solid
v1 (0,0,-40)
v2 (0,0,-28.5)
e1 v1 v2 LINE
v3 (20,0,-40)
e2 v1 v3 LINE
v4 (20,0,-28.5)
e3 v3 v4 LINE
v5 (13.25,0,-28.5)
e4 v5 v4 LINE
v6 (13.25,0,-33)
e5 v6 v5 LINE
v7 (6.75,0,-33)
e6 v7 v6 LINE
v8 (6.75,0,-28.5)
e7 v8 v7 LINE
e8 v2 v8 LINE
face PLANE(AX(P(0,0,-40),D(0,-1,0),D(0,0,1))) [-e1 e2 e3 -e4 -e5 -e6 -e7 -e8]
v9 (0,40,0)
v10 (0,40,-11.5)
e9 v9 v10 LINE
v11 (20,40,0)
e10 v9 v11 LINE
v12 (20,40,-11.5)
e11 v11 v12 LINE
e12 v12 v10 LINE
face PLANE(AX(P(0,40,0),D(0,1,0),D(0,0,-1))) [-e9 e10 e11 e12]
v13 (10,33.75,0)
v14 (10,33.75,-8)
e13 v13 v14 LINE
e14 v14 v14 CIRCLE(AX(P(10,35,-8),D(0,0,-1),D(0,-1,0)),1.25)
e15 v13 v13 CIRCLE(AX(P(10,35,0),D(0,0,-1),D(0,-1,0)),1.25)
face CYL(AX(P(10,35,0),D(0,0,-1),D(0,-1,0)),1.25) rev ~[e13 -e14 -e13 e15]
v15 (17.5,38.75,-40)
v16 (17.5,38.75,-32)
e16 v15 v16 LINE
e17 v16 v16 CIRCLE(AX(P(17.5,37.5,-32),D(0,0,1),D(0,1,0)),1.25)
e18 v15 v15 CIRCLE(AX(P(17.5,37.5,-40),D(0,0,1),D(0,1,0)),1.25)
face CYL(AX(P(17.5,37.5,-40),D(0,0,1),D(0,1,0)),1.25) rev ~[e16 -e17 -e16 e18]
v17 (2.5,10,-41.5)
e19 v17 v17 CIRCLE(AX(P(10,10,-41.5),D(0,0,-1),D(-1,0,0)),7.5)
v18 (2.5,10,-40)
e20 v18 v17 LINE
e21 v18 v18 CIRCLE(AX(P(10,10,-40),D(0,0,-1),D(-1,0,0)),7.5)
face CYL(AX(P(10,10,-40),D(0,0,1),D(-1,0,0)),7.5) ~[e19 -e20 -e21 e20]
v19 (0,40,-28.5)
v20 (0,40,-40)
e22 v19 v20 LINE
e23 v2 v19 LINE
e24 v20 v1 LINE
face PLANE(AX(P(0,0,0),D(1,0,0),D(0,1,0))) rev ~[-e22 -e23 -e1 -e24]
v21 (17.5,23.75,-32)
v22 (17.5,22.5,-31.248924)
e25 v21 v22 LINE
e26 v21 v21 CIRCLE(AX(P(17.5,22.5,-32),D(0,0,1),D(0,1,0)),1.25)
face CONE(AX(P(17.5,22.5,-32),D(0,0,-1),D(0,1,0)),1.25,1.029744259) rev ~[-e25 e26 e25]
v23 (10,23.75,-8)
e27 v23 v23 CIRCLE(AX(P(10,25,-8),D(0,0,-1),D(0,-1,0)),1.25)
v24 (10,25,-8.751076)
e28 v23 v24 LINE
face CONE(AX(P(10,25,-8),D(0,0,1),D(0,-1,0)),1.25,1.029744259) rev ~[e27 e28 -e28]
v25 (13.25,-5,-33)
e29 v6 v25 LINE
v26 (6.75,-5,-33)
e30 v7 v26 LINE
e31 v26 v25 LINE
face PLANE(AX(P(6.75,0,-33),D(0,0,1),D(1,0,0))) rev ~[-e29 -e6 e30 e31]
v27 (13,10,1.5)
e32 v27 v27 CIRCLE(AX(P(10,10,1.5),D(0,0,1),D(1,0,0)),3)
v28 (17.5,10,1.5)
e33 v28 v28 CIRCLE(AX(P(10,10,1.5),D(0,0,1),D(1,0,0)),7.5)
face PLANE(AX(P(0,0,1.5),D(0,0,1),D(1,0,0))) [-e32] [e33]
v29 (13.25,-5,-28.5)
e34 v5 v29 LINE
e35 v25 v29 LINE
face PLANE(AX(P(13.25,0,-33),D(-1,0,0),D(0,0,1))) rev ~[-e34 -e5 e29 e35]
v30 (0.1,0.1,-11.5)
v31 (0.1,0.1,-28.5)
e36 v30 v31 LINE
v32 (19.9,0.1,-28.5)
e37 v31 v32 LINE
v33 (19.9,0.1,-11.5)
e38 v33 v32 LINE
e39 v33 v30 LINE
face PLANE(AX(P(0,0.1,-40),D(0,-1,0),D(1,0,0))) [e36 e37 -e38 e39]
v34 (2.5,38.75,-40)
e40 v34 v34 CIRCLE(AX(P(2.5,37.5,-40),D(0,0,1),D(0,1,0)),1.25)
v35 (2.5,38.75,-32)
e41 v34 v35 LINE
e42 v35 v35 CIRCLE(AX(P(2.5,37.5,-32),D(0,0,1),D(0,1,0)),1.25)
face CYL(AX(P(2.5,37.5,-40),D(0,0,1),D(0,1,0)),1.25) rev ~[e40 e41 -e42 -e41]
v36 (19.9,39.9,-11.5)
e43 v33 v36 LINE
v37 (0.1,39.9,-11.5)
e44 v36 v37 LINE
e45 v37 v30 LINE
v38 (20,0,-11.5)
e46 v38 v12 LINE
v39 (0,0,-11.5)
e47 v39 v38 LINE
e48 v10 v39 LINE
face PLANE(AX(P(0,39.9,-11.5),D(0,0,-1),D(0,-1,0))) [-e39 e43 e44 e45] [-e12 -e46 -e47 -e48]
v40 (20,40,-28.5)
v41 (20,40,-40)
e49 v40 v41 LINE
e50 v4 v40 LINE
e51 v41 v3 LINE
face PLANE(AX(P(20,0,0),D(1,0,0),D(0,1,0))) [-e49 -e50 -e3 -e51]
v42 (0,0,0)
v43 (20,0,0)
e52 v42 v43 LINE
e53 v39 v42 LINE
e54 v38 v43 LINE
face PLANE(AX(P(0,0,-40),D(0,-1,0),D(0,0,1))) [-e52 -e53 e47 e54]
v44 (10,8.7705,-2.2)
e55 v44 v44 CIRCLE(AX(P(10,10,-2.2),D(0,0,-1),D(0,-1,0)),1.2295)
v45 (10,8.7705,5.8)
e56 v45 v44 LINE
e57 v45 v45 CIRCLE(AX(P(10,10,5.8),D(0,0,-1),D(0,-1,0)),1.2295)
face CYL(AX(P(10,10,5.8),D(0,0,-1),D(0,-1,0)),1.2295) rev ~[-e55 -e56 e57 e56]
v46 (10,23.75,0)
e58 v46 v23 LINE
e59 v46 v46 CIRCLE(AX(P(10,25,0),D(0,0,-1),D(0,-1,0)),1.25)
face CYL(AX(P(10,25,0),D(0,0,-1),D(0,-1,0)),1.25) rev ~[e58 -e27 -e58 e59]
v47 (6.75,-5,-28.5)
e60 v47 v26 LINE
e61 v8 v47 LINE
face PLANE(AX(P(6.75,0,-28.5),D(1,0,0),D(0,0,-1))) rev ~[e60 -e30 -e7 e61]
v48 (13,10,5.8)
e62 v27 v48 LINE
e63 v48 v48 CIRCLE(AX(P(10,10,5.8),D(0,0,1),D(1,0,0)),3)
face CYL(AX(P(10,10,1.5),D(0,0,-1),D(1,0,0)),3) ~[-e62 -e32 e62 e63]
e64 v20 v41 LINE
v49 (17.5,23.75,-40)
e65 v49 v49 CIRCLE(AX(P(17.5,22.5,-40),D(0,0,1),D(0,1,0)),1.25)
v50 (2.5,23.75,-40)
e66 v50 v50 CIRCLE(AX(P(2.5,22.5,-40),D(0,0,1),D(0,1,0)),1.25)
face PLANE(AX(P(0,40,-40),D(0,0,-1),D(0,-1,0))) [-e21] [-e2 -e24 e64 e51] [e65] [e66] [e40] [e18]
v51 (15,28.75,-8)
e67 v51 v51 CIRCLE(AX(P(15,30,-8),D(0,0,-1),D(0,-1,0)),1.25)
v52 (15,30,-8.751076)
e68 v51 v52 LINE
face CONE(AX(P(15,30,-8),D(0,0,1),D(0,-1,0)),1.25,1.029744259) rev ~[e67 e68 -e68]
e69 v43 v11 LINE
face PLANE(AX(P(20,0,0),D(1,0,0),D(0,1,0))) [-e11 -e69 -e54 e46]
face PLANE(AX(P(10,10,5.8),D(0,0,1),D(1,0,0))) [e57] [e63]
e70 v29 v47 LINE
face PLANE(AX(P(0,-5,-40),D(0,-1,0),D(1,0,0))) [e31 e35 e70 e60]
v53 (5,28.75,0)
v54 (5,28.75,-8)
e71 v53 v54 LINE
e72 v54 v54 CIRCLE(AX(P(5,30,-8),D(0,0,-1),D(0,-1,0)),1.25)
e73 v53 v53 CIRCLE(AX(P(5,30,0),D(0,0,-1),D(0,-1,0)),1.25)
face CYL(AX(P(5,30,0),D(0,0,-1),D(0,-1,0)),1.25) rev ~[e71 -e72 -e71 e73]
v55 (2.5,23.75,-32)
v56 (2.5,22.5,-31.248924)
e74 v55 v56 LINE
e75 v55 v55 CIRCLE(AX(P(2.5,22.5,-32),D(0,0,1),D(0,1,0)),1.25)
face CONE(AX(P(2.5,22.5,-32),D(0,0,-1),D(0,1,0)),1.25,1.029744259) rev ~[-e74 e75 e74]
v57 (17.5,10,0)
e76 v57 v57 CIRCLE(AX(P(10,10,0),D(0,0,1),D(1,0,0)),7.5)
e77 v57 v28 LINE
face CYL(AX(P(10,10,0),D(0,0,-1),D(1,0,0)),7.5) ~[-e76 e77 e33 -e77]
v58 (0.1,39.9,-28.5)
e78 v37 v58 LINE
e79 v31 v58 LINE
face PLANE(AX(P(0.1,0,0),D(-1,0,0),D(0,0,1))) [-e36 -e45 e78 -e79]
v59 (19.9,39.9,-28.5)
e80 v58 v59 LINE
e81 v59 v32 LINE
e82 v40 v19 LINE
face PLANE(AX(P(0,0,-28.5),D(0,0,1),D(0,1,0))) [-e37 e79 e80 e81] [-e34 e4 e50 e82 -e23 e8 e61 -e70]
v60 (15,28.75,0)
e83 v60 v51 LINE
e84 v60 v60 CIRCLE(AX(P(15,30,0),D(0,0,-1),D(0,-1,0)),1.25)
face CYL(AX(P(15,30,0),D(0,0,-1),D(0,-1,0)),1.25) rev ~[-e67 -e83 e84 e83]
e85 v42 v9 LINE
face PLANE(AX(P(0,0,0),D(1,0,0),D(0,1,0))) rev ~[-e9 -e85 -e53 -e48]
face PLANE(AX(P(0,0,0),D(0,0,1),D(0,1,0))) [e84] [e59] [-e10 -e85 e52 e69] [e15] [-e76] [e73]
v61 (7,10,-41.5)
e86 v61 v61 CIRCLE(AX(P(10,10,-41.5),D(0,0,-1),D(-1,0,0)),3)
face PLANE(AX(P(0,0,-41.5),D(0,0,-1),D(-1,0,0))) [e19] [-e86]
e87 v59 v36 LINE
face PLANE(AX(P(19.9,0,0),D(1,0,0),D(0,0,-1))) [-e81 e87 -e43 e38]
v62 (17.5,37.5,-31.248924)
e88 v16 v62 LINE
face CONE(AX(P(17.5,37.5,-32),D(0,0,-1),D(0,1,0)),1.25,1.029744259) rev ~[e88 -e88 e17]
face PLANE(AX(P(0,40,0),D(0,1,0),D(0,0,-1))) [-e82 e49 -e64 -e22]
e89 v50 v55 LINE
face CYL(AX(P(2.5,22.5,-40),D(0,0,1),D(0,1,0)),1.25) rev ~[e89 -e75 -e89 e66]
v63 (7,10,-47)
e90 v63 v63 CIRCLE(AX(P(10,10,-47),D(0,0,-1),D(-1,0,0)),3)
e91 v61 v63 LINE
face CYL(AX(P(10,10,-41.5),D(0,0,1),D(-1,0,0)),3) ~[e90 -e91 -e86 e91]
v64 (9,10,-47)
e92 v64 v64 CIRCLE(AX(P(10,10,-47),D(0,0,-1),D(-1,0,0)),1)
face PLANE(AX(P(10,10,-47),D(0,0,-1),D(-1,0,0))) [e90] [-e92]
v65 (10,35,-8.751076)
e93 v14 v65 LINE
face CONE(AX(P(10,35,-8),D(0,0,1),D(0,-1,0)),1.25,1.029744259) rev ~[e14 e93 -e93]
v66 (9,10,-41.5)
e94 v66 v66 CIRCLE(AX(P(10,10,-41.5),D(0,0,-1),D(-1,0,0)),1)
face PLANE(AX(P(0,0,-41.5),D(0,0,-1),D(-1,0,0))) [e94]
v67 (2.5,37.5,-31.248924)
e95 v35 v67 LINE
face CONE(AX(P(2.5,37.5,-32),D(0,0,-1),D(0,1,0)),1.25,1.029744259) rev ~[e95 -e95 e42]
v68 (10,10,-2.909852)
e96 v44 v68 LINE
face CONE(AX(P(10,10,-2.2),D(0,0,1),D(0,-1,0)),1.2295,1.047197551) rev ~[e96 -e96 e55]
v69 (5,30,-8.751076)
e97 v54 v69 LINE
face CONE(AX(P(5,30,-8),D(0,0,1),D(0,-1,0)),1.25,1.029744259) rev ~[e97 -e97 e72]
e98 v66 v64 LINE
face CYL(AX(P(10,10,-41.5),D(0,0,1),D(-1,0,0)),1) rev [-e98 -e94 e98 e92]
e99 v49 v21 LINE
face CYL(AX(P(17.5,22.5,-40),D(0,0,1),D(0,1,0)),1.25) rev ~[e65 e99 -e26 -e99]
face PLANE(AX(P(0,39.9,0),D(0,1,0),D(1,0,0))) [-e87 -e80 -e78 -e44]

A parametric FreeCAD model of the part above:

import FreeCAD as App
import Part
import Sketcher
from FreeCAD import Vector
Q = App.Units.Quantity


def add_polygon(sketch, points):
    """Adds a closed chain of lines whose ends are joined by coincident constraints."""
    first, n = sketch.GeometryCount, len(points)
    for a, b in zip(points, points[1:] + points[:1]):
        sketch.addGeometry(Part.LineSegment(App.Vector(*a, 0), App.Vector(*b, 0)), False)
    for i in range(n):
        sketch.addConstraint(Sketcher.Constraint("Coincident", first + i, 2, first + (i + 1) % n, 1))

doc = App.newDocument("Part")
body = doc.addObject("PartDesign::Body", "Body")

# Sketch on YZ plane
sketch1 = body.newObject("Sketcher::SketchObject", "Sketch")
sketch1.AttachmentSupport = (doc.getObject("YZ_Plane"), [""])
sketch1.MapMode = "FlatFace"
add_polygon(sketch1, [(40, 0), (0, 0), (0, -40), (40, -40)])  # lines 0-3
sketch1.addConstraint(Sketcher.Constraint("Horizontal", 0))
sketch1.addConstraint(Sketcher.Constraint("Vertical", 1))
sketch1.addConstraint(Sketcher.Constraint("Horizontal", 2))
sketch1.addConstraint(Sketcher.Constraint("Vertical", 3))
sketch1.addConstraint(Sketcher.Constraint("Coincident", 0, 2, -1, 1))
sketch1.addConstraint(Sketcher.Constraint("Equal", 2, 1))
sketch1.addConstraint(Sketcher.Constraint("DistanceX", 0, 2, 0, 1, Q("40 mm")))
pad1 = body.newObject("PartDesign::Pad", "Pad")
pad1.Profile = sketch1
pad1.Length = 20

# Sketch on XY plane
sketch2 = body.newObject("Sketcher::SketchObject", "Sketch001")
sketch2.AttachmentSupport = (doc.getObject("XY_Plane"), [""])
sketch2.MapMode = "FlatFace"
sketch2.addGeometry(Part.Circle(Vector(10, 10, 0), Vector(0, 0, 1), 8), False)
sketch2.addConstraint(Sketcher.Constraint("Diameter", 0, Q("15 mm")))
sketch2.addConstraint(Sketcher.Constraint("DistanceX", -1, 1, 0, 3, Q("10 mm")))
sketch2.addConstraint(Sketcher.Constraint("DistanceY", -1, 1, 0, 3, Q("10 mm")))
pad2 = body.newObject("PartDesign::Pad", "Pad001")
pad2.Profile = sketch2
pad2.Length = 1.5

# Sketch on XY plane
sketch3 = body.newObject("Sketcher::SketchObject", "Sketch002")
sketch3.AttachmentSupport = (doc.getObject("XY_Plane"), [""])
sketch3.MapMode = "FlatFace"
sketch3.AttachmentOffset = App.Placement(Vector(0, 0, -40), App.Rotation())
sketch3.addGeometry(Part.Circle(Vector(10, 10, 0), Vector(0, 0, 1), 8), False)
sketch3.addConstraint(Sketcher.Constraint("Diameter", 0, Q("15 mm")))
sketch3.addConstraint(Sketcher.Constraint("DistanceX", -1, 1, 0, 3, Q("10 mm")))
sketch3.addConstraint(Sketcher.Constraint("DistanceY", -1, 1, 0, 3, Q("10 mm")))
pad3 = body.newObject("PartDesign::Pad", "Pad002")
pad3.Profile = sketch3
pad3.Length = 1.5
pad3.Reversed = True

# Sketch on YZ plane
sketch4 = body.newObject("Sketcher::SketchObject", "Sketch003")
sketch4.AttachmentSupport = (doc.getObject("YZ_Plane"), [""])
sketch4.MapMode = "FlatFace"
sketch4.AttachmentOffset = App.Placement(Vector(0, 0, 20), App.Rotation())
add_polygon(sketch4, [(0, -28), (40, -28), (40, -12), (0, -12)])  # lines 0-3
sketch4.addConstraint(Sketcher.Constraint("Horizontal", 0))
sketch4.addConstraint(Sketcher.Constraint("Vertical", 1))
sketch4.addConstraint(Sketcher.Constraint("Horizontal", 2))
sketch4.addConstraint(Sketcher.Constraint("Vertical", 3))
sketch4.addConstraint(Sketcher.Constraint("PointOnObject", 2, 2, -2))
sketch4.addConstraint(Sketcher.Constraint("DistanceY", 1, 1, 1, 2, Q("17 mm")))
sketch4.addConstraint(Sketcher.Constraint("DistanceX", 0, 1, 0, 2, Q("40 mm")))
sketch4.addConstraint(Sketcher.Constraint("DistanceY", 0, 2, -1, 1, Q("28.5 mm")))
pocket1 = body.newObject("PartDesign::Pocket", "Pocket")
pocket1.Profile = sketch4
pocket1.Length = 0.1

# Sketch on XZ plane
sketch5 = body.newObject("Sketcher::SketchObject", "Sketch004")
sketch5.AttachmentSupport = (doc.getObject("XZ_Plane"), [""])
sketch5.MapMode = "FlatFace"
sketch5.AttachmentOffset = App.Placement(Vector(0, 0, -40), App.Rotation())
add_polygon(sketch5, [(0, -12), (20, -12), (20, -28), (0, -28)])  # lines 0-3
sketch5.addConstraint(Sketcher.Constraint("Horizontal", 0))
sketch5.addConstraint(Sketcher.Constraint("Vertical", 1))
sketch5.addConstraint(Sketcher.Constraint("Horizontal", 2))
sketch5.addConstraint(Sketcher.Constraint("Vertical", 3))
sketch5.addConstraint(Sketcher.Constraint("PointOnObject", 2, 2, -2))
sketch5.addConstraint(Sketcher.Constraint("DistanceY", 1, 2, 1, 1, Q("17 mm")))
sketch5.addConstraint(Sketcher.Constraint("DistanceX", 0, 1, 0, 2, Q("19.9 mm")))
sketch5.addConstraint(Sketcher.Constraint("DistanceY", 0, 2, -1, 1, Q("11.5 mm")))
pocket2 = body.newObject("PartDesign::Pocket", "Pocket001")
pocket2.Profile = sketch5
pocket2.Length = 0.1
pocket2.Reversed = True

# Sketch on YZ plane
sketch6 = body.newObject("Sketcher::SketchObject", "Sketch005")
sketch6.AttachmentSupport = (doc.getObject("YZ_Plane"), [""])
sketch6.MapMode = "FlatFace"
add_polygon(sketch6, [(0, -12), (40, -12), (40, -28), (0, -28)])  # lines 0-3
sketch6.addConstraint(Sketcher.Constraint("Horizontal", 0))
sketch6.addConstraint(Sketcher.Constraint("Vertical", 1))
sketch6.addConstraint(Sketcher.Constraint("Horizontal", 2))
sketch6.addConstraint(Sketcher.Constraint("Vertical", 3))
sketch6.addConstraint(Sketcher.Constraint("PointOnObject", 2, 2, -2))
sketch6.addConstraint(Sketcher.Constraint("DistanceY", 1, 2, 1, 1, Q("17 mm")))
sketch6.addConstraint(Sketcher.Constraint("DistanceX", 0, 1, 0, 2, Q("39.9 mm")))
sketch6.addConstraint(Sketcher.Constraint("DistanceY", 0, 2, -1, 1, Q("11.5 mm")))
pocket3 = body.newObject("PartDesign::Pocket", "Pocket002")
pocket3.Profile = sketch6
pocket3.Length = 0.1
pocket3.Reversed = True

# Sketch on XZ plane
sketch7 = body.newObject("Sketcher::SketchObject", "Sketch006")
sketch7.AttachmentSupport = (doc.getObject("XZ_Plane"), [""])
sketch7.MapMode = "FlatFace"
add_polygon(sketch7, [(20, -12), (0, -12), (0, -28), (20, -28)])  # lines 0-3
sketch7.addConstraint(Sketcher.Constraint("Horizontal", 0))
sketch7.addConstraint(Sketcher.Constraint("Vertical", 1))
sketch7.addConstraint(Sketcher.Constraint("Horizontal", 2))
sketch7.addConstraint(Sketcher.Constraint("Vertical", 3))
sketch7.addConstraint(Sketcher.Constraint("DistanceY", 1, 2, 1, 1, Q("17 mm")))
sketch7.addConstraint(Sketcher.Constraint("DistanceX", 0, 2, 0, 1, Q("19.9 mm")))
sketch7.addConstraint(Sketcher.Constraint("DistanceX", -1, 1, 2, 2, Q("20 mm")))
sketch7.addConstraint(Sketcher.Constraint("DistanceY", 0, 2, -1, 1, Q("11.5 mm")))
pocket4 = body.newObject("PartDesign::Pocket", "Pocket003")
pocket4.Profile = sketch7
pocket4.Length = 0.1

# Sketch on XY plane
sketch8 = body.newObject("Sketcher::SketchObject", "Sketch007")
sketch8.AttachmentSupport = (doc.getObject("XY_Plane"), [""])
sketch8.MapMode = "FlatFace"
sketch8.AttachmentOffset = App.Placement(Vector(0, 0, -40), App.Rotation())
sketch8.addGeometry(Part.Circle(Vector(17.5, 37.5, 0), Vector(0, 0, 1), 1.2), False)
sketch8.addGeometry(Part.Circle(Vector(2.5, 37.5, 0), Vector(0, 0, 1), 1.2), False)
sketch8.addGeometry(Part.Circle(Vector(2.5, 22.5, 0), Vector(0, 0, 1), 1.2), False)
sketch8.addGeometry(Part.Circle(Vector(17.5, 22.5, 0), Vector(0, 0, 1), 1.2), False)
sketch8.addConstraint(Sketcher.Constraint("Equal", 0, 1))
sketch8.addConstraint(Sketcher.Constraint("Equal", 1, 2))
sketch8.addConstraint(Sketcher.Constraint("Equal", 2, 3))
sketch8.addConstraint(Sketcher.Constraint("Horizontal", 0, 3, 1, 3))
sketch8.addConstraint(Sketcher.Constraint("Horizontal", 2, 3, 3, 3))
sketch8.addConstraint(Sketcher.Constraint("Vertical", 1, 3, 2, 3))
sketch8.addConstraint(Sketcher.Constraint("Vertical", 0, 3, 3, 3))
sketch8.addConstraint(Sketcher.Constraint("Diameter", 0, Q("2.5 mm")))
sketch8.addConstraint(Sketcher.Constraint("DistanceX", 1, 3, 0, 3, Q("15 mm")))
sketch8.addConstraint(Sketcher.Constraint("DistanceY", 2, 3, 1, 3, Q("15 mm")))
sketch8.addConstraint(Sketcher.Constraint("DistanceX", -1, 1, 0, 3, Q("17.5 mm")))
sketch8.addConstraint(Sketcher.Constraint("DistanceY", -1, 1, 0, 3, Q("37.5 mm")))
doc.recompute()
hole = body.newObject("PartDesign::Hole", "Hole")
hole.Profile = sketch8
hole.ThreadType = "None"
hole.Diameter = 2.5
hole.DepthType = "Dimension"
hole.Depth = 8
hole.DrillPoint = "Angled"
hole.DrillPointAngle = 118
hole.Reversed = True

# Sketch on XY plane
sketch9 = body.newObject("Sketcher::SketchObject", "Sketch008")
sketch9.AttachmentSupport = (doc.getObject("XY_Plane"), [""])
sketch9.MapMode = "FlatFace"
sketch9.addGeometry(Part.Circle(Vector(10, 25, 0), Vector(0, 0, 1), 1.2), False)
sketch9.addGeometry(Part.Circle(Vector(5, 30, 0), Vector(0, 0, 1), 1.2), False)
sketch9.addGeometry(Part.Circle(Vector(15, 30, 0), Vector(0, 0, 1), 1.2), False)
sketch9.addGeometry(Part.Circle(Vector(10, 35, 0), Vector(0, 0, 1), 1.2), False)
sketch9.addConstraint(Sketcher.Constraint("Equal", 0, 1))
sketch9.addConstraint(Sketcher.Constraint("Equal", 1, 2))
sketch9.addConstraint(Sketcher.Constraint("Equal", 2, 3))
sketch9.addConstraint(Sketcher.Constraint("Horizontal", 1, 3, 2, 3))
sketch9.addConstraint(Sketcher.Constraint("Vertical", 0, 3, 3, 3))
sketch9.addConstraint(Sketcher.Constraint("Diameter", 0, Q("2.5 mm")))
sketch9.addConstraint(Sketcher.Constraint("DistanceX", -1, 1, 0, 3, Q("10 mm")))
sketch9.addConstraint(Sketcher.Constraint("DistanceY", -1, 1, 0, 3, Q("25 mm")))
sketch9.addConstraint(Sketcher.Constraint("DistanceX", -1, 1, 1, 3, Q("5 mm")))
sketch9.addConstraint(Sketcher.Constraint("DistanceY", -1, 1, 1, 3, Q("30 mm")))
sketch9.addConstraint(Sketcher.Constraint("DistanceX", -1, 1, 2, 3, Q("15 mm")))
sketch9.addConstraint(Sketcher.Constraint("DistanceY", -1, 1, 3, 3, Q("35 mm")))
doc.recompute()
hole2 = body.newObject("PartDesign::Hole", "Hole001")
hole2.Profile = sketch9
hole2.ThreadType = "None"
hole2.Diameter = 2.5
hole2.DepthType = "Dimension"
hole2.Depth = 8
hole2.DrillPoint = "Angled"
hole2.DrillPointAngle = 118

# Sketch on XY plane
sketch10 = body.newObject("Sketcher::SketchObject", "Sketch009")
sketch10.AttachmentSupport = (doc.getObject("XY_Plane"), [""])
sketch10.MapMode = "FlatFace"
sketch10.AttachmentOffset = App.Placement(Vector(0, 0, 1.5), App.Rotation())
sketch10.addGeometry(Part.Circle(Vector(10, 10, 0), Vector(0, 0, 1), 3), False)
sketch10.addConstraint(Sketcher.Constraint("Diameter", 0, Q("6 mm")))
sketch10.addConstraint(Sketcher.Constraint("DistanceX", -1, 1, 0, 3, Q("10 mm")))
sketch10.addConstraint(Sketcher.Constraint("DistanceY", -1, 1, 0, 3, Q("10 mm")))
pad4 = body.newObject("PartDesign::Pad", "Pad003")
pad4.Profile = sketch10
pad4.Length = 4.3

# Sketch on XY plane
sketch11 = body.newObject("Sketcher::SketchObject", "Sketch010")
sketch11.AttachmentSupport = (doc.getObject("XY_Plane"), [""])
sketch11.MapMode = "FlatFace"
sketch11.AttachmentOffset = App.Placement(Vector(0, 0, -41.5), App.Rotation())
sketch11.addGeometry(Part.Circle(Vector(10, 10, 0), Vector(0, 0, 1), 3), False)
sketch11.addGeometry(Part.Circle(Vector(10, 10, 0), Vector(0, 0, 1), 1), False)
sketch11.addConstraint(Sketcher.Constraint("Coincident", 1, 3, 0, 3))
sketch11.addConstraint(Sketcher.Constraint("Diameter", 0, Q("6 mm")))
sketch11.addConstraint(Sketcher.Constraint("Diameter", 1, Q("2 mm")))
sketch11.addConstraint(Sketcher.Constraint("DistanceX", -1, 1, 0, 3, Q("10 mm")))
sketch11.addConstraint(Sketcher.Constraint("DistanceY", -1, 1, 0, 3, Q("10 mm")))
pad5 = body.newObject("PartDesign::Pad", "Pad004")
pad5.Profile = sketch11
pad5.Length = 5.5
pad5.Reversed = True

# Sketch on XZ plane
sketch12 = body.newObject("Sketcher::SketchObject", "Sketch011")
sketch12.AttachmentSupport = (doc.getObject("XZ_Plane"), [""])
sketch12.MapMode = "FlatFace"
add_polygon(sketch12, [(13.2, -33), (13.2, -28.5), (6.8, -28.5), (6.8, -33)])  # lines 0-3
sketch12.addConstraint(Sketcher.Constraint("Vertical", 0))
sketch12.addConstraint(Sketcher.Constraint("Horizontal", 1))
sketch12.addConstraint(Sketcher.Constraint("Vertical", 2))
sketch12.addConstraint(Sketcher.Constraint("Horizontal", 3))
sketch12.addConstraint(Sketcher.Constraint("DistanceX", 1, 2, 1, 1, Q("6.5 mm")))
sketch12.addConstraint(Sketcher.Constraint("DistanceY", 0, 1, 0, 2, Q("4.5 mm")))
sketch12.addConstraint(Sketcher.Constraint("DistanceY", 2, 2, -1, 1, Q("33 mm")))
sketch12.addConstraint(Sketcher.Constraint("DistanceX", -1, 1, 0, 2, Q("13.25 mm")))
pad6 = body.newObject("PartDesign::Pad", "Pad005")
pad6.Profile = sketch12
pad6.Length = 5

# Sketch on XY plane
sketch13 = body.newObject("Sketcher::SketchObject", "Sketch012")
sketch13.AttachmentSupport = (doc.getObject("XY_Plane"), [""])
sketch13.MapMode = "FlatFace"
sketch13.AttachmentOffset = App.Placement(Vector(0, 0, 5.8), App.Rotation())
sketch13.addGeometry(Part.Circle(Vector(10, 10, 0), Vector(0, 0, 1), 1.2), False)
sketch13.addConstraint(Sketcher.Constraint("Diameter", 0, Q("2.459 mm")))
sketch13.addConstraint(Sketcher.Constraint("DistanceX", -1, 1, 0, 3, Q("10 mm")))
sketch13.addConstraint(Sketcher.Constraint("DistanceY", -1, 1, 0, 3, Q("10 mm")))
doc.recompute()
hole3 = body.newObject("PartDesign::Hole", "Hole002")
hole3.Profile = sketch13
hole3.ThreadType = "None"
hole3.Diameter = 2.459
hole3.DepthType = "Dimension"
hole3.Depth = 8
hole3.DrillPoint = "Angled"
hole3.DrillPointAngle = 120

doc.recompute()
